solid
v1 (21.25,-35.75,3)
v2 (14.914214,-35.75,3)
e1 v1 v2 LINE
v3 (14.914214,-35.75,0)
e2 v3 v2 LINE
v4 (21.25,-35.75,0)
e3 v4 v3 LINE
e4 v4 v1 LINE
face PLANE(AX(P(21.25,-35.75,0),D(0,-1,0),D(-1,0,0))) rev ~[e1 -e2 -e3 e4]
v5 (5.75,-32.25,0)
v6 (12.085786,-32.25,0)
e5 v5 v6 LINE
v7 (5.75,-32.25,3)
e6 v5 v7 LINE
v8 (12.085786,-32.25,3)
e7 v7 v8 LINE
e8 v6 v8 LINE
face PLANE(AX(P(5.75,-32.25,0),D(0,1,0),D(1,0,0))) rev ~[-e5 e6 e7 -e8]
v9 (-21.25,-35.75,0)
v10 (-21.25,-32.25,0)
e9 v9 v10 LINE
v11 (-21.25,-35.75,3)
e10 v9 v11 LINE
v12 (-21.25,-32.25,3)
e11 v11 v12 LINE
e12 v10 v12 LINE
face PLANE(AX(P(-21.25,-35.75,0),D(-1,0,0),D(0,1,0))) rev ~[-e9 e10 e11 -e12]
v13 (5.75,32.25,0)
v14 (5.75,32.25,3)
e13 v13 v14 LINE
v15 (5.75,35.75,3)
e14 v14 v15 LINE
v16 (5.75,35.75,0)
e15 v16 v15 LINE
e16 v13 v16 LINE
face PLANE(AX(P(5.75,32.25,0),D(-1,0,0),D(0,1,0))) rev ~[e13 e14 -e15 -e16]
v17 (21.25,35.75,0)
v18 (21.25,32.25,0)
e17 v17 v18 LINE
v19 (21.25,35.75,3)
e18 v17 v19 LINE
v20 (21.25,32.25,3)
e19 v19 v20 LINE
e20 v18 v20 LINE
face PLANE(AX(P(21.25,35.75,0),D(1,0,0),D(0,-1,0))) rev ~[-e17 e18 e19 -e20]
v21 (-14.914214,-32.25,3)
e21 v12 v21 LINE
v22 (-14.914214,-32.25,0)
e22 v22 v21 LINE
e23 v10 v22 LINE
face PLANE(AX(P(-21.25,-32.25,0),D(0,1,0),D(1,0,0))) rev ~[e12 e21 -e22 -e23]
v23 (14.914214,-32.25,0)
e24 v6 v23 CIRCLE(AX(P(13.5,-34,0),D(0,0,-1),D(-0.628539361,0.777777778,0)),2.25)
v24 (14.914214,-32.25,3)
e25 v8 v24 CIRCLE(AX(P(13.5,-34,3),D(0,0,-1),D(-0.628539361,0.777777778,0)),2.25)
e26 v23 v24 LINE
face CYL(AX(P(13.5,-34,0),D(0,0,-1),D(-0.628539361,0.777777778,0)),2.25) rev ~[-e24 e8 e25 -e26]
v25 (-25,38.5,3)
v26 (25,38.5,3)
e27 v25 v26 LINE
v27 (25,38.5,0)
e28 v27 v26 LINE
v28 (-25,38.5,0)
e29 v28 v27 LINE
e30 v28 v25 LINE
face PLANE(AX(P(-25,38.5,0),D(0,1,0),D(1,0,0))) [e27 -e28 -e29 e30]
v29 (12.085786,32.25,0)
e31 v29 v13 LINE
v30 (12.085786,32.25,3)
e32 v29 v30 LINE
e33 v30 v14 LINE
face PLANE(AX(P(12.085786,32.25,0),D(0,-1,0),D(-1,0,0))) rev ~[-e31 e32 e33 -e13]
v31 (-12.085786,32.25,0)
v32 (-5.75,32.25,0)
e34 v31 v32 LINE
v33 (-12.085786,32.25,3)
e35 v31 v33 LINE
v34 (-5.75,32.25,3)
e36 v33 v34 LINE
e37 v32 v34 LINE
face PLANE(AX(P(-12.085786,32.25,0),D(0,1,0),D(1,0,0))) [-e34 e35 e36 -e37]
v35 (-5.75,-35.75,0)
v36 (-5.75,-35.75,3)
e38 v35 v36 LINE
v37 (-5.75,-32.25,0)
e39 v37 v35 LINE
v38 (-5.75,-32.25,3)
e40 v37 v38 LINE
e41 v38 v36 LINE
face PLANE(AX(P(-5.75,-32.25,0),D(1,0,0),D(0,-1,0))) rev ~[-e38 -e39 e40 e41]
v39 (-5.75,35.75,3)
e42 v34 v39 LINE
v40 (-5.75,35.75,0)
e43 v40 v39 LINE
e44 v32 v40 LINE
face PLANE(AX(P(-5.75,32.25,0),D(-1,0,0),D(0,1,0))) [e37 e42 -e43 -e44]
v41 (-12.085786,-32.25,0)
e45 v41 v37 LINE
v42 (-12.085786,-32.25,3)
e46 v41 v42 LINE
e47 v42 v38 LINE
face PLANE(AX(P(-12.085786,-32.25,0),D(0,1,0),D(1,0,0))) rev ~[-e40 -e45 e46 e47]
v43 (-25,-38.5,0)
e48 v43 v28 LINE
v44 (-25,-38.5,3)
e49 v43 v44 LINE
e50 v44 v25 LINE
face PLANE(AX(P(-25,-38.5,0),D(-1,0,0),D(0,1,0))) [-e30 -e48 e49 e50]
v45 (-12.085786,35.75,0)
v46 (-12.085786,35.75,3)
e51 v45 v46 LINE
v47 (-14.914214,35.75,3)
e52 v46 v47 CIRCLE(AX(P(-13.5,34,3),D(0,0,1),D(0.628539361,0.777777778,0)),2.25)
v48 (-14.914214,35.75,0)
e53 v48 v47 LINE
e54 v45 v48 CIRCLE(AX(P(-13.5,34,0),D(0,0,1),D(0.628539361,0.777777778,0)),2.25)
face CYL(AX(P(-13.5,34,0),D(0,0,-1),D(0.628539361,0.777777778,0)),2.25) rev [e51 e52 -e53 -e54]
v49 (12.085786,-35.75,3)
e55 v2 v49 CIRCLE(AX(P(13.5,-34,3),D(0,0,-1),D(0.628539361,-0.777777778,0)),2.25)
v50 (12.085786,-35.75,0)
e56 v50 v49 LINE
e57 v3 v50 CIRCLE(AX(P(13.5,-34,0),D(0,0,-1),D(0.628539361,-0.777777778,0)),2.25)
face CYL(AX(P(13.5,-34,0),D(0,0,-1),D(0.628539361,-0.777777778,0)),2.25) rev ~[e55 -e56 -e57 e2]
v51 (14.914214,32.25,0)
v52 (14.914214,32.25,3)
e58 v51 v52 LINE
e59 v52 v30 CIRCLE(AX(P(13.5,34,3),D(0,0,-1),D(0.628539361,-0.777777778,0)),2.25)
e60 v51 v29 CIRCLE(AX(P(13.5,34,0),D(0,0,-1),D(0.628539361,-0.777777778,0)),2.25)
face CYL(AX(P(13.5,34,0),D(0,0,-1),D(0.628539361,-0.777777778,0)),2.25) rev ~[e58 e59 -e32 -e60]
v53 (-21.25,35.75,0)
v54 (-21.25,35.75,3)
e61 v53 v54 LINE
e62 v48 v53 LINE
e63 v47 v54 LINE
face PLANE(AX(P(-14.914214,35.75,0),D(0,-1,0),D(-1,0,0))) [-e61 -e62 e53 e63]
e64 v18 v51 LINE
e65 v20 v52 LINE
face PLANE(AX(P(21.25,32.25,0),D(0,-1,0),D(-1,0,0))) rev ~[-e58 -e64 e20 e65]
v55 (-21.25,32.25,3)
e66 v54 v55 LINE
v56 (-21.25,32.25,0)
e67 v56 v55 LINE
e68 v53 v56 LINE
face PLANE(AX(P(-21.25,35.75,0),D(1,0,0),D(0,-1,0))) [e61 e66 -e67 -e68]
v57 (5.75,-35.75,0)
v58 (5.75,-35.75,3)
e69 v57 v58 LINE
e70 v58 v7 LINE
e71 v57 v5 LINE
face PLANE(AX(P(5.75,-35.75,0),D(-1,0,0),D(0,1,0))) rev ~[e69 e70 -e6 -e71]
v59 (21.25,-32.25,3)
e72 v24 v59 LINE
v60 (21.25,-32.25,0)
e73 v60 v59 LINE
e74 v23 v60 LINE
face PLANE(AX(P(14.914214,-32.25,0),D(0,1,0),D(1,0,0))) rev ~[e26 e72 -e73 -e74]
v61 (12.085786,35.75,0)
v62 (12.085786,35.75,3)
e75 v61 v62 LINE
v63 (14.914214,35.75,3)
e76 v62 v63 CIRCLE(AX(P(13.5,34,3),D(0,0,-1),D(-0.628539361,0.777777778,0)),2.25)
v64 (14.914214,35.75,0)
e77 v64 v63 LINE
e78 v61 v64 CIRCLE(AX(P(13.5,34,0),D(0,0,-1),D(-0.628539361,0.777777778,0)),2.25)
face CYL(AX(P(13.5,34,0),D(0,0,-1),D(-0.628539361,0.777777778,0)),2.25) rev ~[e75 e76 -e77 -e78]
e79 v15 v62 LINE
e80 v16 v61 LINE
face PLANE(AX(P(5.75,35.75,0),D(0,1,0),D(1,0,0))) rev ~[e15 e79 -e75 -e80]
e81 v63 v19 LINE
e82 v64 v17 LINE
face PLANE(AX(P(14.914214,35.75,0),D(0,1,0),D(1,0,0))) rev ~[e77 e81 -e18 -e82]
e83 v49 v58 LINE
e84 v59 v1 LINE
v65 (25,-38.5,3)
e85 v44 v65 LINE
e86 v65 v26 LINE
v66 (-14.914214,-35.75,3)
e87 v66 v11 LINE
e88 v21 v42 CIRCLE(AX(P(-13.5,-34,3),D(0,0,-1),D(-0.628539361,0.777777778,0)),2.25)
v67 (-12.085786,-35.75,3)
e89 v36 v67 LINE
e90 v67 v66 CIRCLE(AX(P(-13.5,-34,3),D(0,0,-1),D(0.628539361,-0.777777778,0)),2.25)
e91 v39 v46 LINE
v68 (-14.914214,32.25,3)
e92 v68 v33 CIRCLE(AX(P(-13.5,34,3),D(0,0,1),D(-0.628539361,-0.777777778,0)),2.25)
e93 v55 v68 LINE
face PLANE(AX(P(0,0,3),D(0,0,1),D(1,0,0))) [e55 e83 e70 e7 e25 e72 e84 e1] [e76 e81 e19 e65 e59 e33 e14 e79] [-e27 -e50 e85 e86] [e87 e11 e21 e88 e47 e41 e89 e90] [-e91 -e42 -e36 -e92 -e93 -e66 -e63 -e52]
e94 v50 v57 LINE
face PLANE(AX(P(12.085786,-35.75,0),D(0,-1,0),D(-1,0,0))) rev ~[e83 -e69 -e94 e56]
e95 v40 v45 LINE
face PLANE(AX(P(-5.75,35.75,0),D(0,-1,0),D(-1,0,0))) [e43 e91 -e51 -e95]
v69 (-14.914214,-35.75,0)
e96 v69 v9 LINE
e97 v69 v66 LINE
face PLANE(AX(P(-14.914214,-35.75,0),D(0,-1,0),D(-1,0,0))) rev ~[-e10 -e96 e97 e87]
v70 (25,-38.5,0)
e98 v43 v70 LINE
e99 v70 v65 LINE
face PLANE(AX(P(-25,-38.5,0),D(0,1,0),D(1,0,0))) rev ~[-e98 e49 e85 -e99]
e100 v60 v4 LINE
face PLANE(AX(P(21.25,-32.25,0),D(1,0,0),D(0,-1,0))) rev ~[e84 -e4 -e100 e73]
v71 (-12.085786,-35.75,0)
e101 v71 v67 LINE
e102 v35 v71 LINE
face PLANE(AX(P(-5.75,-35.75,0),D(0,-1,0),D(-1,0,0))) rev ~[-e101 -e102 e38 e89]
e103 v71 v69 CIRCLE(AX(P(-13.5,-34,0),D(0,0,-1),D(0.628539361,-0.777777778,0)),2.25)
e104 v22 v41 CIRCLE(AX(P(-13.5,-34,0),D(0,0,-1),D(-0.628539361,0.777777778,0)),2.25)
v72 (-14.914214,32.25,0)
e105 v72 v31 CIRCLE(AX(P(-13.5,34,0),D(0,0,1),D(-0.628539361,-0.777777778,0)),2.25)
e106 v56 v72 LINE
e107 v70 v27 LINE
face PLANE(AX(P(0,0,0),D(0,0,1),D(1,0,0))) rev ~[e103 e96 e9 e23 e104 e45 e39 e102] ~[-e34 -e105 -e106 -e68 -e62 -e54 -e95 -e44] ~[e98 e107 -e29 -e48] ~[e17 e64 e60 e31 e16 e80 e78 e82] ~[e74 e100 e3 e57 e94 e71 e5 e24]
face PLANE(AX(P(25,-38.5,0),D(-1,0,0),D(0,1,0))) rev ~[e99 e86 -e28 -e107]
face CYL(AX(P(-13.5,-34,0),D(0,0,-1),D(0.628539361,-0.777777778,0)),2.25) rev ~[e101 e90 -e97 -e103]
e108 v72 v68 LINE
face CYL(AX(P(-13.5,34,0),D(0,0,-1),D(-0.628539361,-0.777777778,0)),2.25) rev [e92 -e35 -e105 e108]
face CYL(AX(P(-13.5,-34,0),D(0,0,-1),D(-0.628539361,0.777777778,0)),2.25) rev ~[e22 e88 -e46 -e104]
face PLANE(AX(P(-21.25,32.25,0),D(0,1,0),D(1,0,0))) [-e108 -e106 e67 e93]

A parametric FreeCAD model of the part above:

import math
import FreeCAD as App
import Part
import Sketcher
from FreeCAD import Vector
Q = App.Units.Quantity

doc = App.newDocument("Part")
body = doc.addObject("PartDesign::Body", "Body")

# Sketch on XY plane
sketch1 = body.newObject("Sketcher::SketchObject", "Sketch")
sketch1.AttachmentSupport = (doc.getObject("XY_Plane"), [""])
sketch1.MapMode = "FlatFace"
sketch1.addGeometry(Part.LineSegment(Vector(-25, 38.5, 0), Vector(-25, -38.5, 0)), False)
sketch1.addGeometry(Part.LineSegment(Vector(-25, -38.5, 0), Vector(25, -38.5, 0)), False)
sketch1.addGeometry(Part.LineSegment(Vector(25, -38.5, 0), Vector(25, 38.5, 0)), False)
sketch1.addGeometry(Part.LineSegment(Vector(25, 38.5, 0), Vector(-25, 38.5, 0)), False)
sketch1.addGeometry(Part.LineSegment(Vector(-14.9, -35.8, 0), Vector(-21.2, -35.8, 0)), False)
sketch1.addGeometry(Part.LineSegment(Vector(-21.2, -35.8, 0), Vector(-21.2, -32.2, 0)), False)
sketch1.addGeometry(Part.LineSegment(Vector(-21.2, -32.2, 0), Vector(-14.9, -32.2, 0)), False)
sketch1.addGeometry(Part.ArcOfCircle(Part.Circle(Vector(-13.5, -34, 0), Vector(0, 0, 1), 2.2), math.radians(51), math.radians(129)), False)
sketch1.addGeometry(Part.LineSegment(Vector(-12.1, -32.2, 0), Vector(-5.8, -32.2, 0)), False)
sketch1.addGeometry(Part.LineSegment(Vector(-5.8, -32.2, 0), Vector(-5.8, -35.8, 0)), False)
sketch1.addGeometry(Part.LineSegment(Vector(-5.8, -35.8, 0), Vector(-12.1, -35.8, 0)), False)
sketch1.addGeometry(Part.ArcOfCircle(Part.Circle(Vector(-13.5, -34, 0), Vector(0, 0, 1), 2.2), math.radians(-129), math.radians(-51)), False)
sketch1.addGeometry(Part.LineSegment(Vector(21.2, -32.2, 0), Vector(21.2, -35.8, 0)), False)
sketch1.addGeometry(Part.LineSegment(Vector(21.2, -35.8, 0), Vector(14.9, -35.8, 0)), False)
sketch1.addGeometry(Part.ArcOfCircle(Part.Circle(Vector(13.5, -34, 0), Vector(0, 0, 1), 2.2), math.radians(-129), math.radians(-51)), False)
sketch1.addGeometry(Part.LineSegment(Vector(12.1, -35.8, 0), Vector(5.8, -35.8, 0)), False)
sketch1.addGeometry(Part.LineSegment(Vector(5.8, -35.8, 0), Vector(5.8, -32.2, 0)), False)
sketch1.addGeometry(Part.LineSegment(Vector(5.8, -32.2, 0), Vector(12.1, -32.2, 0)), False)
sketch1.addGeometry(Part.ArcOfCircle(Part.Circle(Vector(13.5, -34, 0), Vector(0, 0, 1), 2.2), math.radians(51), math.radians(129)), False)
sketch1.addGeometry(Part.LineSegment(Vector(14.9, -32.2, 0), Vector(21.2, -32.2, 0)), False)
sketch1.addGeometry(Part.LineSegment(Vector(-5.8, 32.2, 0), Vector(-12.1, 32.2, 0)), False)
sketch1.addGeometry(Part.ArcOfCircle(Part.Circle(Vector(-13.5, 34, 0), Vector(0, 0, 1), 2.2), math.radians(-129), math.radians(-51)), False)
sketch1.addGeometry(Part.LineSegment(Vector(-14.9, 32.2, 0), Vector(-21.2, 32.2, 0)), False)
sketch1.addGeometry(Part.LineSegment(Vector(-21.2, 32.2, 0), Vector(-21.2, 35.8, 0)), False)
sketch1.addGeometry(Part.LineSegment(Vector(-21.2, 35.8, 0), Vector(-14.9, 35.8, 0)), False)
sketch1.addGeometry(Part.ArcOfCircle(Part.Circle(Vector(-13.5, 34, 0), Vector(0, 0, 1), 2.2), math.radians(51), math.radians(129)), False)
sketch1.addGeometry(Part.LineSegment(Vector(-12.1, 35.8, 0), Vector(-5.8, 35.8, 0)), False)
sketch1.addGeometry(Part.LineSegment(Vector(-5.8, 35.8, 0), Vector(-5.8, 32.2, 0)), False)
sketch1.addGeometry(Part.LineSegment(Vector(14.9, 35.8, 0), Vector(21.2, 35.8, 0)), False)
sketch1.addGeometry(Part.LineSegment(Vector(21.2, 35.8, 0), Vector(21.2, 32.2, 0)), False)
sketch1.addGeometry(Part.LineSegment(Vector(21.2, 32.2, 0), Vector(14.9, 32.2, 0)), False)
sketch1.addGeometry(Part.ArcOfCircle(Part.Circle(Vector(13.5, 34, 0), Vector(0, 0, 1), 2.2), math.radians(-129), math.radians(-51)), False)
sketch1.addGeometry(Part.LineSegment(Vector(12.1, 32.2, 0), Vector(5.8, 32.2, 0)), False)
sketch1.addGeometry(Part.LineSegment(Vector(5.8, 32.2, 0), Vector(5.8, 35.8, 0)), False)
sketch1.addGeometry(Part.LineSegment(Vector(5.8, 35.8, 0), Vector(12.1, 35.8, 0)), False)
sketch1.addGeometry(Part.ArcOfCircle(Part.Circle(Vector(13.5, 34, 0), Vector(0, 0, 1), 2.2), math.radians(51), math.radians(129)), False)
sketch1.addConstraint(Sketcher.Constraint("Coincident", 0, 2, 1, 1))
sketch1.addConstraint(Sketcher.Constraint("Coincident", 1, 2, 2, 1))
sketch1.addConstraint(Sketcher.Constraint("Coincident", 2, 2, 3, 1))
sketch1.addConstraint(Sketcher.Constraint("Coincident", 3, 2, 0, 1))
sketch1.addConstraint(Sketcher.Constraint("Coincident", 4, 2, 5, 1))
sketch1.addConstraint(Sketcher.Constraint("Coincident", 5, 2, 6, 1))
sketch1.addConstraint(Sketcher.Constraint("Coincident", 6, 2, 7, 2))
sketch1.addConstraint(Sketcher.Constraint("Coincident", 7, 1, 8, 1))
sketch1.addConstraint(Sketcher.Constraint("Coincident", 8, 2, 9, 1))
sketch1.addConstraint(Sketcher.Constraint("Coincident", 9, 2, 10, 1))
sketch1.addConstraint(Sketcher.Constraint("Coincident", 10, 2, 11, 2))
sketch1.addConstraint(Sketcher.Constraint("Coincident", 11, 1, 4, 1))
sketch1.addConstraint(Sketcher.Constraint("Coincident", 12, 2, 13, 1))
sketch1.addConstraint(Sketcher.Constraint("Coincident", 13, 2, 14, 2))
sketch1.addConstraint(Sketcher.Constraint("Coincident", 14, 1, 15, 1))
sketch1.addConstraint(Sketcher.Constraint("Coincident", 15, 2, 16, 1))
sketch1.addConstraint(Sketcher.Constraint("Coincident", 16, 2, 17, 1))
sketch1.addConstraint(Sketcher.Constraint("Coincident", 17, 2, 18, 2))
sketch1.addConstraint(Sketcher.Constraint("Coincident", 18, 1, 19, 1))
sketch1.addConstraint(Sketcher.Constraint("Coincident", 19, 2, 12, 1))
sketch1.addConstraint(Sketcher.Constraint("Coincident", 20, 2, 21, 2))
sketch1.addConstraint(Sketcher.Constraint("Coincident", 21, 1, 22, 1))
sketch1.addConstraint(Sketcher.Constraint("Coincident", 22, 2, 23, 1))
sketch1.addConstraint(Sketcher.Constraint("Coincident", 23, 2, 24, 1))
sketch1.addConstraint(Sketcher.Constraint("Coincident", 24, 2, 25, 2))
sketch1.addConstraint(Sketcher.Constraint("Coincident", 25, 1, 26, 1))
sketch1.addConstraint(Sketcher.Constraint("Coincident", 26, 2, 27, 1))
sketch1.addConstraint(Sketcher.Constraint("Coincident", 27, 2, 20, 1))
sketch1.addConstraint(Sketcher.Constraint("Coincident", 28, 2, 29, 1))
sketch1.addConstraint(Sketcher.Constraint("Coincident", 29, 2, 30, 1))
sketch1.addConstraint(Sketcher.Constraint("Coincident", 30, 2, 31, 2))
sketch1.addConstraint(Sketcher.Constraint("Coincident", 31, 1, 32, 1))
sketch1.addConstraint(Sketcher.Constraint("Coincident", 32, 2, 33, 1))
sketch1.addConstraint(Sketcher.Constraint("Coincident", 33, 2, 34, 1))
sketch1.addConstraint(Sketcher.Constraint("Coincident", 34, 2, 35, 2))
sketch1.addConstraint(Sketcher.Constraint("Coincident", 35, 1, 28, 1))
sketch1.addConstraint(Sketcher.Constraint("Vertical", 0))
sketch1.addConstraint(Sketcher.Constraint("Horizontal", 1))
sketch1.addConstraint(Sketcher.Constraint("Vertical", 2))
sketch1.addConstraint(Sketcher.Constraint("Horizontal", 3))
sketch1.addConstraint(Sketcher.Constraint("Horizontal", 4))
sketch1.addConstraint(Sketcher.Constraint("Vertical", 5))
sketch1.addConstraint(Sketcher.Constraint("Horizontal", 6))
sketch1.addConstraint(Sketcher.Constraint("Horizontal", 8))
sketch1.addConstraint(Sketcher.Constraint("Vertical", 9))
sketch1.addConstraint(Sketcher.Constraint("Horizontal", 10))
sketch1.addConstraint(Sketcher.Constraint("Vertical", 12))
sketch1.addConstraint(Sketcher.Constraint("Horizontal", 13))
sketch1.addConstraint(Sketcher.Constraint("Horizontal", 15))
sketch1.addConstraint(Sketcher.Constraint("Vertical", 16))
sketch1.addConstraint(Sketcher.Constraint("Horizontal", 17))
sketch1.addConstraint(Sketcher.Constraint("Horizontal", 19))
sketch1.addConstraint(Sketcher.Constraint("Horizontal", 20))
sketch1.addConstraint(Sketcher.Constraint("Horizontal", 22))
sketch1.addConstraint(Sketcher.Constraint("Vertical", 23))
sketch1.addConstraint(Sketcher.Constraint("Horizontal", 24))
sketch1.addConstraint(Sketcher.Constraint("Horizontal", 26))
sketch1.addConstraint(Sketcher.Constraint("Vertical", 27))
sketch1.addConstraint(Sketcher.Constraint("Horizontal", 28))
sketch1.addConstraint(Sketcher.Constraint("Vertical", 29))
sketch1.addConstraint(Sketcher.Constraint("Horizontal", 30))
sketch1.addConstraint(Sketcher.Constraint("Horizontal", 32))
sketch1.addConstraint(Sketcher.Constraint("Vertical", 33))
sketch1.addConstraint(Sketcher.Constraint("Horizontal", 34))
sketch1.addConstraint(Sketcher.Constraint("Coincident", 11, 3, 7, 3))
sketch1.addConstraint(Sketcher.Constraint("Coincident", 18, 3, 14, 3))
sketch1.addConstraint(Sketcher.Constraint("Coincident", 25, 3, 21, 3))
sketch1.addConstraint(Sketcher.Constraint("Coincident", 35, 3, 31, 3))
sketch1.addConstraint(Sketcher.Constraint("Equal", 7, 11))
sketch1.addConstraint(Sketcher.Constraint("Equal", 11, 14))
sketch1.addConstraint(Sketcher.Constraint("Equal", 14, 18))
sketch1.addConstraint(Sketcher.Constraint("Equal", 18, 21))
sketch1.addConstraint(Sketcher.Constraint("Equal", 21, 25))
sketch1.addConstraint(Sketcher.Constraint("Equal", 25, 31))
sketch1.addConstraint(Sketcher.Constraint("Equal", 31, 35))
sketch1.addConstraint(Sketcher.Constraint("Symmetric", 14, 3, 21, 3, -1, 1))
sketch1.addConstraint(Sketcher.Constraint("Symmetric", 7, 3, 31, 3, -1, 1))
sketch1.addConstraint(Sketcher.Constraint("Symmetric", 0, 2, 2, 2, -1, 1))
sketch1.addConstraint(Sketcher.Constraint("Symmetric", 19, 2, 22, 2, -1, 1))
sketch1.addConstraint(Sketcher.Constraint("Symmetric", 15, 2, 26, 2, -1, 1))
sketch1.addConstraint(Sketcher.Constraint("Symmetric", 4, 2, 28, 2, -1, 1))
sketch1.addConstraint(Sketcher.Constraint("Symmetric", 8, 2, 32, 2, -1, 1))
sketch1.addConstraint(Sketcher.Constraint("Symmetric", 7, 3, 14, 3, -2))
sketch1.addConstraint(Sketcher.Constraint("Symmetric", 4, 2, 12, 2, -2))
sketch1.addConstraint(Sketcher.Constraint("Symmetric", 9, 2, 15, 2, -2))
sketch1.addConstraint(Sketcher.Constraint("Horizontal", 6, 2, 7, 1))
sketch1.addConstraint(Sketcher.Constraint("Horizontal", 4, 2, 9, 2))
sketch1.addConstraint(Sketcher.Constraint("Horizontal", 8, 2, 16, 2))
sketch1.addConstraint(Sketcher.Constraint("Horizontal", 17, 2, 18, 1))
sketch1.addConstraint(Sketcher.Constraint("Horizontal", 20, 2, 21, 1))
sketch1.addConstraint(Sketcher.Constraint("Horizontal", 24, 2, 25, 1))
sketch1.addConstraint(Sketcher.Constraint("Horizontal", 27, 2, 29, 2))
sketch1.addConstraint(Sketcher.Constraint("Horizontal", 28, 2, 33, 2))
sketch1.addConstraint(Sketcher.Constraint("Vertical", 7, 1, 10, 2))
sketch1.addConstraint(Sketcher.Constraint("Equal", 6, 8))
sketch1.addConstraint(Sketcher.Constraint("DistanceX", 1, 1, 1, 2, Q("50 mm")))
sketch1.addConstraint(Sketcher.Constraint("DistanceY", 0, 2, 0, 1, Q("77 mm")))
sketch1.addConstraint(Sketcher.Constraint("Radius", 7, Q("2.25 mm")))
sketch1.addConstraint(Sketcher.Constraint("DistanceY", 5, 1, 5, 2, Q("3.5 mm")))
sketch1.addConstraint(Sketcher.Constraint("DistanceY", 7, 3, -1, 1, Q("34 mm")))
sketch1.addConstraint(Sketcher.Constraint("DistanceX", 7, 3, 14, 3, Q("27 mm")))
sketch1.addConstraint(Sketcher.Constraint("DistanceX", 5, 2, 8, 2, Q("15.5 mm")))
pad1 = body.newObject("PartDesign::Pad", "Pad")
pad1.Profile = sketch1
pad1.Length = 3

doc.recompute()
